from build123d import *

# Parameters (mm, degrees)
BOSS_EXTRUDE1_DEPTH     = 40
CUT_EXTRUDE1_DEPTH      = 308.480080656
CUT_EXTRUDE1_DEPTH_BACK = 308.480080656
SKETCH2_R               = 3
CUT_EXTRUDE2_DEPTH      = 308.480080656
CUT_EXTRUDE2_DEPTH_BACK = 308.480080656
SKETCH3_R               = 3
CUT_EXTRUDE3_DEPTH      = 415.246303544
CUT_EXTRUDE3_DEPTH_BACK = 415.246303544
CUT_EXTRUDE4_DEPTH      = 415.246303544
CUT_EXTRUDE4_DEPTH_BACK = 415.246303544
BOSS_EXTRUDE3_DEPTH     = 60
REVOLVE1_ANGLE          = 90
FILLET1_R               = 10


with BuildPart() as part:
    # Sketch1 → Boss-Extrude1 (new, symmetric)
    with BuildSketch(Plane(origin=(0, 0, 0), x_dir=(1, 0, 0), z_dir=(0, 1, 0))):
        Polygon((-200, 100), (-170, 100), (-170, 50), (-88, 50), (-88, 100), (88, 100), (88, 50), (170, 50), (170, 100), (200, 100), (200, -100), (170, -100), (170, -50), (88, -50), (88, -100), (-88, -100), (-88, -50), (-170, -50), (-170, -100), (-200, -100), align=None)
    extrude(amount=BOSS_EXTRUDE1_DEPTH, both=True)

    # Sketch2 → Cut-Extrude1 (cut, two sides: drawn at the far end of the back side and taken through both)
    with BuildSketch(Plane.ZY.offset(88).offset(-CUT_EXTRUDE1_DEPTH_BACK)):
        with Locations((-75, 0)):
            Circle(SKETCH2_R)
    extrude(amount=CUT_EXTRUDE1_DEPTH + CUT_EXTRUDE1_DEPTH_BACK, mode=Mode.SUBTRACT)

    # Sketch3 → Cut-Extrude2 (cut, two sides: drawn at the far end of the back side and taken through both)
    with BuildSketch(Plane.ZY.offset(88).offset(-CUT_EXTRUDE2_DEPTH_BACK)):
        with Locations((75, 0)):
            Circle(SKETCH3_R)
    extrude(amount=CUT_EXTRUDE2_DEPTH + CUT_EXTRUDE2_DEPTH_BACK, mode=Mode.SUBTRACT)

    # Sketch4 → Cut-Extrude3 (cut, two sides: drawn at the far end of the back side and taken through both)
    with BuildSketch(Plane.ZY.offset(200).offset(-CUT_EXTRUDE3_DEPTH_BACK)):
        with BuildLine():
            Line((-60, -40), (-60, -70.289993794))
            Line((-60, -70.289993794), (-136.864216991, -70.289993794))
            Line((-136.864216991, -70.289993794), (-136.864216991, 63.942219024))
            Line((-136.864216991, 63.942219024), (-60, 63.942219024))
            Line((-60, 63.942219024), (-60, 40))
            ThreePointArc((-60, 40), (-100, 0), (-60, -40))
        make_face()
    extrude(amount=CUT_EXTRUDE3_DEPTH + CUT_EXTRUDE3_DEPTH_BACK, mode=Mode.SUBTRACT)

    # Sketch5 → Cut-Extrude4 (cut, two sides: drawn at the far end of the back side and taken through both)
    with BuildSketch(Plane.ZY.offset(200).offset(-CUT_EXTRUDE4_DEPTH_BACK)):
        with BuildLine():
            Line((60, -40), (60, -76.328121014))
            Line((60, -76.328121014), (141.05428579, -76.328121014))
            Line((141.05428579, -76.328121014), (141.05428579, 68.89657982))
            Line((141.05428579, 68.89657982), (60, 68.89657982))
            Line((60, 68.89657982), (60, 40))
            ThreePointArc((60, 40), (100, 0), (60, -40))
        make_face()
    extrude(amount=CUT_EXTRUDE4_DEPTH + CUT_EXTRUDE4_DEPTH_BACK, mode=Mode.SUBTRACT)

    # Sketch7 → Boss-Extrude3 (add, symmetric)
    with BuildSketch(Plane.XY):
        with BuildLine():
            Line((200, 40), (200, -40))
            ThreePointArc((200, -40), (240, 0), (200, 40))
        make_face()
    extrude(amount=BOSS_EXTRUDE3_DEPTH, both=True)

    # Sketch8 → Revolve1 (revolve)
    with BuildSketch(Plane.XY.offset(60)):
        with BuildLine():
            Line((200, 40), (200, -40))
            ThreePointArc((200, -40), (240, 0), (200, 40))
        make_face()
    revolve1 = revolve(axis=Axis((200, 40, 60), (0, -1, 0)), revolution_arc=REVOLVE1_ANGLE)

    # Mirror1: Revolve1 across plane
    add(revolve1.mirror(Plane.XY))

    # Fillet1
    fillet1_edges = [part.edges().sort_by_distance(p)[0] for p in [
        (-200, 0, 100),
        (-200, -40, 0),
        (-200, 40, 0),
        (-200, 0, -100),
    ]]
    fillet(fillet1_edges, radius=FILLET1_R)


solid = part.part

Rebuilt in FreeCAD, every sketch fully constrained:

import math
import FreeCAD as App
import Part
import Sketcher
from FreeCAD import Vector


def edges_at(feature, points):
    """Names of the edges that pass closest to the given points."""
    edges = feature.Shape.Edges
    near = lambda p: min(range(len(edges)), key=lambda i: edges[i].distToShape(Part.Vertex(*p))[0])
    return sorted({f"Edge{near(p) + 1}" for p in points})

doc = App.newDocument("Part")
params = doc.addObject("Spreadsheet::Sheet", "Params")
for row, (alias, value) in enumerate([
    ("sketch1_width", "30 mm"),
    ("sketch1_width2", "82 mm"),
    ("sketch1_width3", "176 mm"),
    ("sketch1_height", "200 mm"),
    ("sketch1_height2", "50 mm"),
    ("pad1_length", "80 mm"),
    ("sketch2_diameter", "6 mm"),
    ("sketch3_diameter", "6 mm"),
    ("sketch4_radius", "40 mm"),
    ("sketch5_radius", "40 mm"),
    ("sketch6_radius", "40 mm"),
    ("pad2_length", "120 mm"),
    ("sketch7_radius", "40 mm"),
    ("revolution_angle", "90 deg"),
    ("fillet_radius", "10 mm"),
], start=1):
    params.set(f"A{row}", alias)
    params.set(f"B{row}", "=" + value)
    params.setAlias(f"B{row}", alias)

body = doc.addObject("PartDesign::Body", "Body")

# Sketch on XZ plane
sketch1 = body.newObject("Sketcher::SketchObject", "Sketch")
sketch1.AttachmentSupport = (doc.getObject("XZ_Plane"), [""])
sketch1.MapMode = "FlatFace"
sketch1.addGeometry([
    Part.LineSegment(Vector(-170, -100, 0), Vector(-200, -100, 0)),  # 0
    Part.LineSegment(Vector(-200, -100, 0), Vector(-200, 100, 0)),  # 1
    Part.LineSegment(Vector(-200, 100, 0), Vector(-170, 100, 0)),  # 2
    Part.LineSegment(Vector(-170, 100, 0), Vector(-170, 50, 0)),  # 3
    Part.LineSegment(Vector(-170, 50, 0), Vector(-88, 50, 0)),  # 4
    Part.LineSegment(Vector(-88, 50, 0), Vector(-88, 100, 0)),  # 5
    Part.LineSegment(Vector(-88, 100, 0), Vector(88, 100, 0)),  # 6
    Part.LineSegment(Vector(88, 100, 0), Vector(88, 50, 0)),  # 7
    Part.LineSegment(Vector(88, 50, 0), Vector(170, 50, 0)),  # 8
    Part.LineSegment(Vector(170, 50, 0), Vector(170, 100, 0)),  # 9
    Part.LineSegment(Vector(170, 100, 0), Vector(200, 100, 0)),  # 10
    Part.LineSegment(Vector(200, 100, 0), Vector(200, -100, 0)),  # 11
    Part.LineSegment(Vector(200, -100, 0), Vector(170, -100, 0)),  # 12
    Part.LineSegment(Vector(170, -100, 0), Vector(170, -50, 0)),  # 13
    Part.LineSegment(Vector(170, -50, 0), Vector(88, -50, 0)),  # 14
    Part.LineSegment(Vector(88, -50, 0), Vector(88, -100, 0)),  # 15
    Part.LineSegment(Vector(88, -100, 0), Vector(-88, -100, 0)),  # 16
    Part.LineSegment(Vector(-88, -100, 0), Vector(-88, -50, 0)),  # 17
    Part.LineSegment(Vector(-88, -50, 0), Vector(-170, -50, 0)),  # 18
    Part.LineSegment(Vector(-170, -50, 0), Vector(-170, -100, 0)),  # 19
], False)
sketch1.addConstraint([
    Sketcher.Constraint("Coincident", 0, 2, 1, 1),
    Sketcher.Constraint("Coincident", 1, 2, 2, 1),
    Sketcher.Constraint("Coincident", 2, 2, 3, 1),
    Sketcher.Constraint("Coincident", 3, 2, 4, 1),
    Sketcher.Constraint("Coincident", 4, 2, 5, 1),
    Sketcher.Constraint("Coincident", 5, 2, 6, 1),
    Sketcher.Constraint("Coincident", 6, 2, 7, 1),
    Sketcher.Constraint("Coincident", 7, 2, 8, 1),
    Sketcher.Constraint("Coincident", 8, 2, 9, 1),
    Sketcher.Constraint("Coincident", 9, 2, 10, 1),
    Sketcher.Constraint("Coincident", 10, 2, 11, 1),
    Sketcher.Constraint("Coincident", 11, 2, 12, 1),
    Sketcher.Constraint("Coincident", 12, 2, 13, 1),
    Sketcher.Constraint("Coincident", 13, 2, 14, 1),
    Sketcher.Constraint("Coincident", 14, 2, 15, 1),
    Sketcher.Constraint("Coincident", 15, 2, 16, 1),
    Sketcher.Constraint("Coincident", 16, 2, 17, 1),
    Sketcher.Constraint("Coincident", 17, 2, 18, 1),
    Sketcher.Constraint("Coincident", 18, 2, 19, 1),
    Sketcher.Constraint("Coincident", 19, 2, 0, 1),
    Sketcher.Constraint("Horizontal", 0),
    Sketcher.Constraint("Vertical", 1),
    Sketcher.Constraint("Horizontal", 2),
    Sketcher.Constraint("Vertical", 3),
    Sketcher.Constraint("Horizontal", 4),
    Sketcher.Constraint("Vertical", 5),
    Sketcher.Constraint("Horizontal", 6),
    Sketcher.Constraint("Vertical", 7),
    Sketcher.Constraint("Horizontal", 8),
    Sketcher.Constraint("Vertical", 9),
    Sketcher.Constraint("Horizontal", 10),
    Sketcher.Constraint("Vertical", 11),
    Sketcher.Constraint("Horizontal", 12),
    Sketcher.Constraint("Vertical", 13),
    Sketcher.Constraint("Horizontal", 14),
    Sketcher.Constraint("Vertical", 15),
    Sketcher.Constraint("Horizontal", 16),
    Sketcher.Constraint("Vertical", 17),
    Sketcher.Constraint("Horizontal", 18),
    Sketcher.Constraint("Vertical", 19),
    Sketcher.Constraint("Symmetric", 0, 2, 10, 2, -1, 1),
    Sketcher.Constraint("Symmetric", 2, 2, 12, 2, -1, 1),
    Sketcher.Constraint("Symmetric", 4, 2, 14, 2, -1, 1),
    Sketcher.Constraint("Symmetric", 6, 2, 16, 2, -1, 1),
    Sketcher.Constraint("Symmetric", 8, 2, 18, 2, -1, 1),
    Sketcher.Constraint("Symmetric", 4, 2, 7, 2, -2),
    Sketcher.Constraint("Symmetric", 2, 2, 9, 2, -2),
    Sketcher.Constraint("Horizontal", 2, 2, 5, 2),
    Sketcher.Constraint("DistanceX", 0, 2, 0, 1, 30.0),
    Sketcher.Constraint("DistanceX", 4, 1, 4, 2, 82.0),
    Sketcher.Constraint("DistanceX", 6, 1, 6, 2, 176.0),
    Sketcher.Constraint("DistanceY", 1, 1, 1, 2, 200.0),
    Sketcher.Constraint("DistanceY", 3, 2, 3, 1, 50.0),
])
sketch1.setExpression("Constraints[48]", "Params.sketch1_width")
sketch1.setExpression("Constraints[49]", "Params.sketch1_width2")
sketch1.setExpression("Constraints[50]", "Params.sketch1_width3")
sketch1.setExpression("Constraints[51]", "Params.sketch1_height")
sketch1.setExpression("Constraints[52]", "Params.sketch1_height2")
pad1 = body.newObject("PartDesign::Pad", "Pad")
pad1.Profile = sketch1
pad1.setExpression("Length", "Params.pad1_length")
pad1.Midplane = True

# Sketch on YZ plane
sketch2 = body.newObject("Sketcher::SketchObject", "Sketch001")
sketch2.AttachmentSupport = (doc.getObject("YZ_Plane"), [""])
sketch2.MapMode = "FlatFace"
sketch2.AttachmentOffset = App.Placement(Vector(0, 0, -88), App.Rotation())
sketch2.addGeometry(Part.Circle(Vector(0, -75, 0), Vector(0, 0, 1), 3), False)
sketch2.addConstraint([
    Sketcher.Constraint("PointOnObject", 0, 3, -2),
    Sketcher.Constraint("Diameter", 0, 6.0),
    Sketcher.Constraint("DistanceY", 0, 3, -1, 1, 75.0),
])
sketch2.setExpression("Constraints[1]", "Params.sketch2_diameter")
pocket1 = body.newObject("PartDesign::Pocket", "Pocket")
pocket1.Profile = sketch2
pocket1.Type = "ThroughAll"
pocket1.Midplane = True

# Sketch on YZ plane
sketch3 = body.newObject("Sketcher::SketchObject", "Sketch002")
sketch3.AttachmentSupport = (doc.getObject("YZ_Plane"), [""])
sketch3.MapMode = "FlatFace"
sketch3.AttachmentOffset = App.Placement(Vector(0, 0, -88), App.Rotation())
sketch3.addGeometry(Part.Circle(Vector(0, 75, 0), Vector(0, 0, 1), 3), False)
sketch3.addConstraint([
    Sketcher.Constraint("PointOnObject", 0, 3, -2),
    Sketcher.Constraint("Diameter", 0, 6.0),
    Sketcher.Constraint("DistanceY", -1, 1, 0, 3, 75.0),
])
sketch3.setExpression("Constraints[1]", "Params.sketch3_diameter")
pocket2 = body.newObject("PartDesign::Pocket", "Pocket001")
pocket2.Profile = sketch3
pocket2.Type = "ThroughAll"
pocket2.Midplane = True

# Sketch on YZ plane
sketch4 = body.newObject("Sketcher::SketchObject", "Sketch003")
sketch4.AttachmentSupport = (doc.getObject("YZ_Plane"), [""])
sketch4.MapMode = "FlatFace"
sketch4.AttachmentOffset = App.Placement(Vector(0, 0, -200), App.Rotation())
sketch4.addGeometry([
    Part.LineSegment(Vector(-70.289994, -60, 0), Vector(-40, -60, 0)),  # 0
    Part.ArcOfCircle(Part.Circle(Vector(0, -60, 0), Vector(0, 0, 1), 40), math.radians(180), math.radians(360)),  # 1
    Part.LineSegment(Vector(40, -60, 0), Vector(63.942219, -60, 0)),  # 2
    Part.LineSegment(Vector(63.942219, -60, 0), Vector(63.942219, -136.864217, 0)),  # 3
    Part.LineSegment(Vector(63.942219, -136.864217, 0), Vector(-70.289994, -136.864217, 0)),  # 4
    Part.LineSegment(Vector(-70.289994, -136.864217, 0), Vector(-70.289994, -60, 0)),  # 5
], False)
sketch4.addConstraint([
    Sketcher.Constraint("Coincident", 0, 2, 1, 1),
    Sketcher.Constraint("Coincident", 1, 2, 2, 1),
    Sketcher.Constraint("Coincident", 2, 2, 3, 1),
    Sketcher.Constraint("Coincident", 3, 2, 4, 1),
    Sketcher.Constraint("Coincident", 4, 2, 5, 1),
    Sketcher.Constraint("Coincident", 5, 2, 0, 1),
    Sketcher.Constraint("Horizontal", 0),
    Sketcher.Constraint("Horizontal", 2),
    Sketcher.Constraint("Vertical", 3),
    Sketcher.Constraint("Horizontal", 4),
    Sketcher.Constraint("Vertical", 5),
    Sketcher.Constraint("Symmetric", 0, 2, 1, 2, -2),
    Sketcher.Constraint("Horizontal", 1, 3, 0, 2),
    Sketcher.Constraint("Radius", 1, 40.0),
    Sketcher.Constraint("DistanceY", 1, 3, -1, 1, 60.0),
    Sketcher.Constraint("DistanceX", 2, 1, 2, 2, 23.942219),
    Sketcher.Constraint("DistanceX", 0, 1, 0, 2, 30.289994),
    Sketcher.Constraint("DistanceY", 3, 2, 3, 1, 76.864217),
])
sketch4.setExpression("Constraints[13]", "Params.sketch4_radius")
pocket3 = body.newObject("PartDesign::Pocket", "Pocket002")
pocket3.Profile = sketch4
pocket3.Type = "ThroughAll"
pocket3.Midplane = True

# Sketch on YZ plane
sketch5 = body.newObject("Sketcher::SketchObject", "Sketch004")
sketch5.AttachmentSupport = (doc.getObject("YZ_Plane"), [""])
sketch5.MapMode = "FlatFace"
sketch5.AttachmentOffset = App.Placement(Vector(0, 0, -200), App.Rotation())
sketch5.addGeometry([
    Part.LineSegment(Vector(-40, 60, 0), Vector(-76.328121, 60, 0)),  # 0
    Part.LineSegment(Vector(-76.328121, 60, 0), Vector(-76.328121, 141.054286, 0)),  # 1
    Part.LineSegment(Vector(-76.328121, 141.054286, 0), Vector(68.89658, 141.054286, 0)),  # 2
    Part.LineSegment(Vector(68.89658, 141.054286, 0), Vector(68.89658, 60, 0)),  # 3
    Part.LineSegment(Vector(68.89658, 60, 0), Vector(40, 60, 0)),  # 4
    Part.ArcOfCircle(Part.Circle(Vector(0, 60, 0), Vector(0, 0, 1), 40), math.radians(0), math.radians(180)),  # 5
], False)
sketch5.addConstraint([
    Sketcher.Constraint("Coincident", 0, 2, 1, 1),
    Sketcher.Constraint("Coincident", 1, 2, 2, 1),
    Sketcher.Constraint("Coincident", 2, 2, 3, 1),
    Sketcher.Constraint("Coincident", 3, 2, 4, 1),
    Sketcher.Constraint("Coincident", 4, 2, 5, 1),
    Sketcher.Constraint("Coincident", 5, 2, 0, 1),
    Sketcher.Constraint("Horizontal", 0),
    Sketcher.Constraint("Vertical", 1),
    Sketcher.Constraint("Horizontal", 2),
    Sketcher.Constraint("Vertical", 3),
    Sketcher.Constraint("Horizontal", 4),
    Sketcher.Constraint("Symmetric", 4, 2, 5, 2, -2),
    Sketcher.Constraint("Horizontal", 5, 3, 0, 2),
    Sketcher.Constraint("Radius", 5, 40.0),
    Sketcher.Constraint("DistanceY", -1, 1, 5, 3, 60.0),
    Sketcher.Constraint("DistanceX", 2, 1, 2, 2, 145.224701),
    Sketcher.Constraint("DistanceX", 0, 2, 0, 1, 36.328121),
    Sketcher.Constraint("DistanceY", 1, 1, 1, 2, 81.054286),
])
sketch5.setExpression("Constraints[13]", "Params.sketch5_radius")
pocket4 = body.newObject("PartDesign::Pocket", "Pocket003")
pocket4.Profile = sketch5
pocket4.Type = "ThroughAll"
pocket4.Midplane = True

# Sketch on XY plane
sketch6 = body.newObject("Sketcher::SketchObject", "Sketch005")
sketch6.AttachmentSupport = (doc.getObject("XY_Plane"), [""])
sketch6.MapMode = "FlatFace"
sketch6.addGeometry([
    Part.LineSegment(Vector(200, 40, 0), Vector(200, -40, 0)),
    Part.ArcOfCircle(Part.Circle(Vector(200, 0, 0), Vector(0, 0, 1), 40), math.radians(-90), math.radians(90)),
], False)
sketch6.addConstraint([
    Sketcher.Constraint("Coincident", 0, 1, 1, 2),
    Sketcher.Constraint("Coincident", 1, 1, 0, 2),
    Sketcher.Constraint("Vertical", 0),
    Sketcher.Constraint("PointOnObject", 1, 3, -1),
    Sketcher.Constraint("Vertical", 1, 3, 0, 1),
    Sketcher.Constraint("Radius", 1, 40.0),
    Sketcher.Constraint("DistanceX", -1, 1, 1, 3, 200.0),
])
sketch6.setExpression("Constraints[5]", "Params.sketch6_radius")
pad2 = body.newObject("PartDesign::Pad", "Pad001")
pad2.Profile = sketch6
pad2.setExpression("Length", "Params.pad2_length")
pad2.Midplane = True

# Sketch on XY plane
sketch7 = body.newObject("Sketcher::SketchObject", "Sketch006")
sketch7.AttachmentSupport = (doc.getObject("XY_Plane"), [""])
sketch7.MapMode = "FlatFace"
sketch7.AttachmentOffset = App.Placement(Vector(0, 0, 60), App.Rotation())
sketch7.addGeometry([
    Part.LineSegment(Vector(200, 40, 0), Vector(200, -40, 0)),
    Part.ArcOfCircle(Part.Circle(Vector(200, 0, 0), Vector(0, 0, 1), 40), math.radians(-90), math.radians(90)),
], False)
sketch7.addGeometry(Part.LineSegment(Vector(200, 40, 0), Vector(200, -40, 0)), True)  # axis
sketch7.addConstraint([
    Sketcher.Constraint("Coincident", 0, 1, 1, 2),
    Sketcher.Constraint("Coincident", 1, 1, 0, 2),
    Sketcher.Constraint("Vertical", 0),
    Sketcher.Constraint("Vertical", 2),
    Sketcher.Constraint("Coincident", 2, 1, 0, 1),
    Sketcher.Constraint("PointOnObject", 1, 3, -1),
    Sketcher.Constraint("Vertical", 1, 3, 0, 1),
    Sketcher.Constraint("Equal", 0, 2),
    Sketcher.Constraint("Radius", 1, 40.0),
    Sketcher.Constraint("DistanceX", -1, 1, 1, 3, 200.0),
])
sketch7.setExpression("Constraints[8]", "Params.sketch7_radius")
revolution = body.newObject("PartDesign::Revolution", "Revolution")
revolution.Profile = sketch7
revolution.ReferenceAxis = (sketch7, ["Axis0"])
revolution.setExpression("Angle", "Params.revolution_angle")
doc.recompute()

mirrored = body.newObject("PartDesign::Mirrored", "Mirrored")
mirrored.Originals = [revolution]
mirrored.MirrorPlane = (doc.getObject("XY_Plane"), [""])
body.Tip = mirrored
doc.recompute()

fillet = body.newObject("PartDesign::Fillet", "Fillet")
fillet.Base = (mirrored, edges_at(mirrored, [
    (-200, 0, 100),
    (-200, -40, 0),
    (-200, 40, 0),
    (-200, 0, -100),
]))
fillet.setExpression("Radius", "Params.fillet_radius")

doc.recompute()
